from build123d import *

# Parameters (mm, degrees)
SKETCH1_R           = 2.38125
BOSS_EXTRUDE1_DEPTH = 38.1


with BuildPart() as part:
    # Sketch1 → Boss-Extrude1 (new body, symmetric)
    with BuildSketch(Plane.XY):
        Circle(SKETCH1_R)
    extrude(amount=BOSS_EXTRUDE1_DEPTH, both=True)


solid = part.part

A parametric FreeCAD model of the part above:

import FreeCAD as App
import Part
import Sketcher
Q = App.Units.Quantity

doc = App.newDocument("Part")
body = doc.addObject("PartDesign::Body", "Body")

# Sketch on XY plane
sketch1 = doc.addObject("Sketcher::SketchObject", "Sketch")
body.addObject(sketch1)
sketch1.AttachmentSupport = (doc.XY_Plane, [""])
sketch1.MapMode = "FlatFace"
sketch1.addGeometry(Part.Circle(App.Vector(0, 0, 0), App.Vector(0, 0, 1), 2.4), False)
sketch1.addConstraint([
    Sketcher.Constraint("Coincident", 0, 3, -1, 1),
    Sketcher.Constraint("Diameter", 0, Q("0.1875 in")),
])
pad1 = doc.addObject("PartDesign::Pad", "Pad")
body.addObject(pad1)
pad1.Profile = sketch1
pad1.Length = Q("3 in")
pad1.Midplane = True

doc.recompute()
